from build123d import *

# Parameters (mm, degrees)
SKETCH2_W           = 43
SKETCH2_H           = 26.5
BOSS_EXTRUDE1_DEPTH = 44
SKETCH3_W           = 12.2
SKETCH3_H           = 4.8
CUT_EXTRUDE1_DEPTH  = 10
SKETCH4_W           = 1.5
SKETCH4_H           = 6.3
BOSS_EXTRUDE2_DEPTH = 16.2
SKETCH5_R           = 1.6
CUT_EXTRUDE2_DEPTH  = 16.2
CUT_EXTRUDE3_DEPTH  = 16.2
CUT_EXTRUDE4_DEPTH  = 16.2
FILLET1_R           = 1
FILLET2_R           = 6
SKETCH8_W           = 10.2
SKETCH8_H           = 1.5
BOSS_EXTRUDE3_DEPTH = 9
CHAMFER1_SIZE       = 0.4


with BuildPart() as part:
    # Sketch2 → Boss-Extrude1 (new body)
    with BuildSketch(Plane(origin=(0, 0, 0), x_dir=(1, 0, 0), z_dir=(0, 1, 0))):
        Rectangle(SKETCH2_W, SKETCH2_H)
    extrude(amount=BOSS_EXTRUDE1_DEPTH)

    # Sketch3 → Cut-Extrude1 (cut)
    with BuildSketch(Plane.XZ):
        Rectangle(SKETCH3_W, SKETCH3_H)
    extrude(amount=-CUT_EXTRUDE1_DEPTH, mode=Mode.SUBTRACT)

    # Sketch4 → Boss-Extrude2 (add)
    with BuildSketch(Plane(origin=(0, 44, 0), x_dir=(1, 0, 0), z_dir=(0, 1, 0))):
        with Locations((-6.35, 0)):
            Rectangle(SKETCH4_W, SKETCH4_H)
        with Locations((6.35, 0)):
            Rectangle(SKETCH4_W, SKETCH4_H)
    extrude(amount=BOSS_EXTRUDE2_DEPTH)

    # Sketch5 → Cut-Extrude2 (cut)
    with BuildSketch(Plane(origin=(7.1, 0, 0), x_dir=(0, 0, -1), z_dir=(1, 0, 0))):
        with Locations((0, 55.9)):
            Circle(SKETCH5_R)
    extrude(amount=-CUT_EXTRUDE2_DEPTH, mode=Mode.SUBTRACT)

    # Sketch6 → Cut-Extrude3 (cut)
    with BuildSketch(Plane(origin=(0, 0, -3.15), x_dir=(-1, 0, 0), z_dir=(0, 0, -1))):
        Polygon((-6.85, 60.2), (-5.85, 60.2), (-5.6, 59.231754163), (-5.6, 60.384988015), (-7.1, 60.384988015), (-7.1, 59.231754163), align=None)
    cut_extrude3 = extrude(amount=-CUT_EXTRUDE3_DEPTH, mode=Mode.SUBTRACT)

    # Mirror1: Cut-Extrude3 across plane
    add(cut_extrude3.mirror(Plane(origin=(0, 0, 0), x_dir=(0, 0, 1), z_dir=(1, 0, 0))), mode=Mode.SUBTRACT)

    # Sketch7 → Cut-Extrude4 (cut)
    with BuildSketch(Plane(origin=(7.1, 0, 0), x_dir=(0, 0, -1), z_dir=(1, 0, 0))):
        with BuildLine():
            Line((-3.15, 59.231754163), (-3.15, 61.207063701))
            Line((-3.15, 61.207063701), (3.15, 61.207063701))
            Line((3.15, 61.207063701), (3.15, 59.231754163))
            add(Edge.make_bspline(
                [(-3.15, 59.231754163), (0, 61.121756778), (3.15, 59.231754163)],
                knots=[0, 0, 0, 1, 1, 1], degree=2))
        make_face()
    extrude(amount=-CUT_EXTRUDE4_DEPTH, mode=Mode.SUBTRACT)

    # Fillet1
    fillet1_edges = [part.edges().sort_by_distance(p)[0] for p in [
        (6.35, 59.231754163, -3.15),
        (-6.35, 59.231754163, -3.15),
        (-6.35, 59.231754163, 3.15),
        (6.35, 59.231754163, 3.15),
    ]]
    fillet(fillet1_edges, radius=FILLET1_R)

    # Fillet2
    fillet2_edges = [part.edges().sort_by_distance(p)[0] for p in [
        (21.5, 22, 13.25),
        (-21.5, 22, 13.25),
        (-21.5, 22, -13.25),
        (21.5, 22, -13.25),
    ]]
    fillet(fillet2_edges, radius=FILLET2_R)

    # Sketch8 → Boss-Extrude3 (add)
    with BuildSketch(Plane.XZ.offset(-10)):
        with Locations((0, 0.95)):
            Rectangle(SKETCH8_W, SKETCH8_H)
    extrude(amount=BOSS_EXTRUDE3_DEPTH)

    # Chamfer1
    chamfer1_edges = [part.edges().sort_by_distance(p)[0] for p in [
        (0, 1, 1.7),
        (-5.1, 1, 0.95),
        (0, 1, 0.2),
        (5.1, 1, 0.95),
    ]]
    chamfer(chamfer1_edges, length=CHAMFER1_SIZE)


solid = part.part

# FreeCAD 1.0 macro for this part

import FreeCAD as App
import Part
import Sketcher
Q = App.Units.Quantity


def edges_at(feature, points):
    """Names of the edges that pass closest to the given points."""
    edges = feature.Shape.Edges
    near = lambda p: min(range(len(edges)), key=lambda i: edges[i].distToShape(Part.Vertex(*p))[0])
    return sorted({f"Edge{near(p) + 1}" for p in points})

doc = App.newDocument("Part")
body = doc.addObject("PartDesign::Body", "Body")

# Sketch on XZ plane
sketch1 = doc.addObject("Sketcher::SketchObject", "Sketch")
body.addObject(sketch1)
sketch1.AttachmentSupport = (doc.XZ_Plane, [""])
sketch1.MapMode = "FlatFace"
sketch1.addGeometry(Part.LineSegment(App.Vector(-22, -13, 0), App.Vector(-22, 13, 0)), False)
sketch1.addGeometry(Part.LineSegment(App.Vector(-22, 13, 0), App.Vector(22, 13, 0)), False)
sketch1.addGeometry(Part.LineSegment(App.Vector(22, 13, 0), App.Vector(22, -13, 0)), False)
sketch1.addGeometry(Part.LineSegment(App.Vector(22, -13, 0), App.Vector(-22, -13, 0)), False)
sketch1.addConstraint(Sketcher.Constraint("Coincident", 0, 2, 1, 1))
sketch1.addConstraint(Sketcher.Constraint("Coincident", 1, 2, 2, 1))
sketch1.addConstraint(Sketcher.Constraint("Coincident", 2, 2, 3, 1))
sketch1.addConstraint(Sketcher.Constraint("Coincident", 3, 2, 0, 1))
sketch1.addConstraint(Sketcher.Constraint("Vertical", 0))
sketch1.addConstraint(Sketcher.Constraint("Horizontal", 1))
sketch1.addConstraint(Sketcher.Constraint("Vertical", 2))
sketch1.addConstraint(Sketcher.Constraint("Horizontal", 3))
sketch1.addConstraint(Sketcher.Constraint("Symmetric", 0, 2, 2, 2, -1, 1))
sketch1.addConstraint(Sketcher.Constraint("DistanceX", 1, 1, 1, 2, Q("43 mm")))
sketch1.addConstraint(Sketcher.Constraint("DistanceY", 0, 1, 0, 2, Q("26.5 mm")))
pad1 = doc.addObject("PartDesign::Pad", "Pad")
body.addObject(pad1)
pad1.Profile = sketch1
pad1.Length = 44
pad1.Reversed = True

# Sketch on XZ plane
sketch2 = doc.addObject("Sketcher::SketchObject", "Sketch001")
body.addObject(sketch2)
sketch2.AttachmentSupport = (doc.XZ_Plane, [""])
sketch2.MapMode = "FlatFace"
sketch2.addGeometry(Part.LineSegment(App.Vector(-6.1, 2.4, 0), App.Vector(-6.1, -2.4, 0)), False)
sketch2.addGeometry(Part.LineSegment(App.Vector(-6.1, -2.4, 0), App.Vector(6.1, -2.4, 0)), False)
sketch2.addGeometry(Part.LineSegment(App.Vector(6.1, -2.4, 0), App.Vector(6.1, 2.4, 0)), False)
sketch2.addGeometry(Part.LineSegment(App.Vector(6.1, 2.4, 0), App.Vector(-6.1, 2.4, 0)), False)
sketch2.addConstraint(Sketcher.Constraint("Coincident", 0, 2, 1, 1))
sketch2.addConstraint(Sketcher.Constraint("Coincident", 1, 2, 2, 1))
sketch2.addConstraint(Sketcher.Constraint("Coincident", 2, 2, 3, 1))
sketch2.addConstraint(Sketcher.Constraint("Coincident", 3, 2, 0, 1))
sketch2.addConstraint(Sketcher.Constraint("Vertical", 0))
sketch2.addConstraint(Sketcher.Constraint("Horizontal", 1))
sketch2.addConstraint(Sketcher.Constraint("Vertical", 2))
sketch2.addConstraint(Sketcher.Constraint("Horizontal", 3))
sketch2.addConstraint(Sketcher.Constraint("Symmetric", 0, 2, 2, 2, -1, 1))
sketch2.addConstraint(Sketcher.Constraint("DistanceX", 1, 1, 1, 2, Q("12.2 mm")))
sketch2.addConstraint(Sketcher.Constraint("DistanceY", 0, 2, 0, 1, Q("4.8 mm")))
pocket1 = doc.addObject("PartDesign::Pocket", "Pocket")
body.addObject(pocket1)
pocket1.Profile = sketch2
pocket1.Length = 10

# Sketch on XZ plane
sketch3 = doc.addObject("Sketcher::SketchObject", "Sketch002")
body.addObject(sketch3)
sketch3.AttachmentSupport = (doc.XZ_Plane, [""])
sketch3.MapMode = "FlatFace"
sketch3.AttachmentOffset = App.Placement(App.Vector(0, 0, -44), App.Rotation())
sketch3.addGeometry(Part.LineSegment(App.Vector(-7.1, -3.1, 0), App.Vector(-7.1, 3.1, 0)), False)
sketch3.addGeometry(Part.LineSegment(App.Vector(-7.1, 3.1, 0), App.Vector(-5.6, 3.1, 0)), False)
sketch3.addGeometry(Part.LineSegment(App.Vector(-5.6, 3.1, 0), App.Vector(-5.6, -3.1, 0)), False)
sketch3.addGeometry(Part.LineSegment(App.Vector(-5.6, -3.1, 0), App.Vector(-7.1, -3.1, 0)), False)
sketch3.addGeometry(Part.LineSegment(App.Vector(5.6, -3.1, 0), App.Vector(5.6, 3.1, 0)), False)
sketch3.addGeometry(Part.LineSegment(App.Vector(5.6, 3.1, 0), App.Vector(7.1, 3.1, 0)), False)
sketch3.addGeometry(Part.LineSegment(App.Vector(7.1, 3.1, 0), App.Vector(7.1, -3.1, 0)), False)
sketch3.addGeometry(Part.LineSegment(App.Vector(7.1, -3.1, 0), App.Vector(5.6, -3.1, 0)), False)
sketch3.addConstraint(Sketcher.Constraint("Coincident", 0, 2, 1, 1))
sketch3.addConstraint(Sketcher.Constraint("Coincident", 1, 2, 2, 1))
sketch3.addConstraint(Sketcher.Constraint("Coincident", 2, 2, 3, 1))
sketch3.addConstraint(Sketcher.Constraint("Coincident", 3, 2, 0, 1))
sketch3.addConstraint(Sketcher.Constraint("Coincident", 4, 2, 5, 1))
sketch3.addConstraint(Sketcher.Constraint("Coincident", 5, 2, 6, 1))
sketch3.addConstraint(Sketcher.Constraint("Coincident", 6, 2, 7, 1))
sketch3.addConstraint(Sketcher.Constraint("Coincident", 7, 2, 4, 1))
sketch3.addConstraint(Sketcher.Constraint("Vertical", 0))
sketch3.addConstraint(Sketcher.Constraint("Horizontal", 1))
sketch3.addConstraint(Sketcher.Constraint("Vertical", 2))
sketch3.addConstraint(Sketcher.Constraint("Horizontal", 3))
sketch3.addConstraint(Sketcher.Constraint("Vertical", 4))
sketch3.addConstraint(Sketcher.Constraint("Horizontal", 5))
sketch3.addConstraint(Sketcher.Constraint("Vertical", 6))
sketch3.addConstraint(Sketcher.Constraint("Horizontal", 7))
sketch3.addConstraint(Sketcher.Constraint("Symmetric", 2, 2, 4, 2, -1, 1))
sketch3.addConstraint(Sketcher.Constraint("Symmetric", 0, 2, 6, 2, -1, 1))
sketch3.addConstraint(Sketcher.Constraint("Horizontal", 1, 2, 4, 2))
sketch3.addConstraint(Sketcher.Constraint("DistanceX", 1, 1, 1, 2, Q("1.5 mm")))
sketch3.addConstraint(Sketcher.Constraint("DistanceY", 0, 1, 0, 2, Q("6.3 mm")))
sketch3.addConstraint(Sketcher.Constraint("DistanceX", 0, 2, -1, 1, Q("7.1 mm")))
pad2 = doc.addObject("PartDesign::Pad", "Pad001")
body.addObject(pad2)
pad2.Profile = sketch3
pad2.Length = 16.2
pad2.Reversed = True

# Sketch on YZ plane
sketch4 = doc.addObject("Sketcher::SketchObject", "Sketch003")
body.addObject(sketch4)
sketch4.AttachmentSupport = (doc.YZ_Plane, [""])
sketch4.MapMode = "FlatFace"
sketch4.AttachmentOffset = App.Placement(App.Vector(0, 0, 7.1), App.Rotation())
sketch4.addGeometry(Part.Circle(App.Vector(55.9, 0, 0), App.Vector(0, 0, 1), 1.6), False)
sketch4.addConstraint(Sketcher.Constraint("PointOnObject", 0, 3, -1))
sketch4.addConstraint(Sketcher.Constraint("Diameter", 0, Q("3.2 mm")))
sketch4.addConstraint(Sketcher.Constraint("DistanceX", -1, 1, 0, 3, Q("55.9 mm")))
pocket2 = doc.addObject("PartDesign::Pocket", "Pocket001")
body.addObject(pocket2)
pocket2.Profile = sketch4
pocket2.Length = 16.2

# Sketch on XY plane
sketch5 = doc.addObject("Sketcher::SketchObject", "Sketch004")
body.addObject(sketch5)
sketch5.AttachmentSupport = (doc.XY_Plane, [""])
sketch5.MapMode = "FlatFace"
sketch5.AttachmentOffset = App.Placement(App.Vector(0, 0, -3.15), App.Rotation())
sketch5.addGeometry(Part.LineSegment(App.Vector(6.8, 60.2, 0), App.Vector(5.8, 60.2, 0)), False)
sketch5.addGeometry(Part.LineSegment(App.Vector(5.8, 60.2, 0), App.Vector(5.6, 59.2, 0)), False)
sketch5.addGeometry(Part.LineSegment(App.Vector(5.6, 59.2, 0), App.Vector(5.6, 60.4, 0)), False)
sketch5.addGeometry(Part.LineSegment(App.Vector(5.6, 60.4, 0), App.Vector(7.1, 60.4, 0)), False)
sketch5.addGeometry(Part.LineSegment(App.Vector(7.1, 60.4, 0), App.Vector(7.1, 59.2, 0)), False)
sketch5.addGeometry(Part.LineSegment(App.Vector(7.1, 59.2, 0), App.Vector(6.8, 60.2, 0)), False)
sketch5.addConstraint(Sketcher.Constraint("Coincident", 0, 2, 1, 1))
sketch5.addConstraint(Sketcher.Constraint("Coincident", 1, 2, 2, 1))
sketch5.addConstraint(Sketcher.Constraint("Coincident", 2, 2, 3, 1))
sketch5.addConstraint(Sketcher.Constraint("Coincident", 3, 2, 4, 1))
sketch5.addConstraint(Sketcher.Constraint("Coincident", 4, 2, 5, 1))
sketch5.addConstraint(Sketcher.Constraint("Coincident", 5, 2, 0, 1))
sketch5.addConstraint(Sketcher.Constraint("Horizontal", 0))
sketch5.addConstraint(Sketcher.Constraint("Vertical", 2))
sketch5.addConstraint(Sketcher.Constraint("Horizontal", 3))
sketch5.addConstraint(Sketcher.Constraint("Vertical", 4))
sketch5.addConstraint(Sketcher.Constraint("Horizontal", 1, 2, 4, 2))
sketch5.addConstraint(Sketcher.Constraint("Equal", 1, 5))
sketch5.addConstraint(Sketcher.Constraint("DistanceX", 0, 2, 0, 1, Q("1 mm")))
sketch5.addConstraint(Sketcher.Constraint("Distance", 1, Q("1 mm")))
sketch5.addConstraint(Sketcher.Constraint("DistanceX", 3, 1, 3, 2, Q("1.5 mm")))
sketch5.addConstraint(Sketcher.Constraint("DistanceY", -1, 1, 0, 2, Q("60.2 mm")))
sketch5.addConstraint(Sketcher.Constraint("DistanceX", -1, 1, 1, 2, Q("5.6 mm")))
sketch5.addConstraint(Sketcher.Constraint("DistanceY", 2, 1, 2, 2, Q("1.153234 mm")))
pocket3 = doc.addObject("PartDesign::Pocket", "Pocket002")
body.addObject(pocket3)
pocket3.Profile = sketch5
pocket3.Length = 16.2
pocket3.Reversed = True
doc.recompute()

mirrored = doc.addObject("PartDesign::Mirrored", "Mirrored")
body.addObject(mirrored)
mirrored.Originals = [pocket3]
mirrored.MirrorPlane = (doc.YZ_Plane, [""])
body.Tip = mirrored

# Sketch on YZ plane
sketch6 = doc.addObject("Sketcher::SketchObject", "Sketch005")
body.addObject(sketch6)
sketch6.AttachmentSupport = (doc.YZ_Plane, [""])
sketch6.MapMode = "FlatFace"
sketch6.AttachmentOffset = App.Placement(App.Vector(0, 0, 7.1), App.Rotation())
sketch6.addGeometry(Part.LineSegment(App.Vector(61.207064, 3.15, 0), App.Vector(59.231754, 3.15, 0)), False)
sketch6.addGeometry(Part.BSplineCurve([App.Vector(59.231754, 3.15, 0), App.Vector(61.121757, 0, 0), App.Vector(59.231754, -3.15, 0)], [3, 3], [0, 1], False, 2, [1, 1, 1], False), False)
sketch6.addGeometry(Part.LineSegment(App.Vector(59.231754, -3.15, 0), App.Vector(61.207064, -3.15, 0)), False)
sketch6.addGeometry(Part.LineSegment(App.Vector(61.207064, -3.15, 0), App.Vector(61.207064, 3.15, 0)), False)
sketch6.addConstraint(Sketcher.Constraint("Block", 1))
sketch6.addConstraint(Sketcher.Constraint("Coincident", 0, 2, 1, 1))
sketch6.addConstraint(Sketcher.Constraint("Coincident", 1, 2, 2, 1))
sketch6.addConstraint(Sketcher.Constraint("Coincident", 2, 2, 3, 1))
sketch6.addConstraint(Sketcher.Constraint("Coincident", 3, 2, 0, 1))
sketch6.addConstraint(Sketcher.Constraint("Horizontal", 0))
sketch6.addConstraint(Sketcher.Constraint("Horizontal", 2))
sketch6.addConstraint(Sketcher.Constraint("Vertical", 3))
sketch6.addConstraint(Sketcher.Constraint("DistanceX", 0, 2, 0, 1, Q("1.97531 mm")))
pocket4 = doc.addObject("PartDesign::Pocket", "Pocket003")
body.addObject(pocket4)
pocket4.Profile = sketch6
pocket4.Length = 16.2
doc.recompute()

fillet = doc.addObject("PartDesign::Fillet", "Fillet")
body.addObject(fillet)
fillet.Base = (pocket4, edges_at(pocket4, [
    (6.35, 59.232, -3.15),
    (-6.35, 59.232, -3.15),
    (-6.35, 59.232, 3.15),
    (6.35, 59.232, 3.15),
]))
fillet.Radius = 1
doc.recompute()

fillet2 = doc.addObject("PartDesign::Fillet", "Fillet001")
body.addObject(fillet2)
fillet2.Base = (fillet, edges_at(fillet, [
    (21.5, 22, 13.25),
    (-21.5, 22, 13.25),
    (-21.5, 22, -13.25),
    (21.5, 22, -13.25),
]))
fillet2.Radius = 6

# Sketch on XZ plane
sketch7 = doc.addObject("Sketcher::SketchObject", "Sketch006")
body.addObject(sketch7)
sketch7.AttachmentSupport = (doc.XZ_Plane, [""])
sketch7.MapMode = "FlatFace"
sketch7.AttachmentOffset = App.Placement(App.Vector(0, 0, -10), App.Rotation())
sketch7.addGeometry(Part.LineSegment(App.Vector(-5.1, 1.7, 0), App.Vector(-5.1, 0.2, 0)), False)
sketch7.addGeometry(Part.LineSegment(App.Vector(-5.1, 0.2, 0), App.Vector(5.1, 0.2, 0)), False)
sketch7.addGeometry(Part.LineSegment(App.Vector(5.1, 0.2, 0), App.Vector(5.1, 1.7, 0)), False)
sketch7.addGeometry(Part.LineSegment(App.Vector(5.1, 1.7, 0), App.Vector(-5.1, 1.7, 0)), False)
sketch7.addConstraint(Sketcher.Constraint("Coincident", 0, 2, 1, 1))
sketch7.addConstraint(Sketcher.Constraint("Coincident", 1, 2, 2, 1))
sketch7.addConstraint(Sketcher.Constraint("Coincident", 2, 2, 3, 1))
sketch7.addConstraint(Sketcher.Constraint("Coincident", 3, 2, 0, 1))
sketch7.addConstraint(Sketcher.Constraint("Vertical", 0))
sketch7.addConstraint(Sketcher.Constraint("Horizontal", 1))
sketch7.addConstraint(Sketcher.Constraint("Vertical", 2))
sketch7.addConstraint(Sketcher.Constraint("Horizontal", 3))
sketch7.addConstraint(Sketcher.Constraint("DistanceX", 1, 1, 1, 2, Q("10.2 mm")))
sketch7.addConstraint(Sketcher.Constraint("DistanceY", 0, 2, 0, 1, Q("1.5 mm")))
sketch7.addConstraint(Sketcher.Constraint("DistanceX", 0, 2, -1, 1, Q("5.1 mm")))
sketch7.addConstraint(Sketcher.Constraint("DistanceY", -1, 1, 0, 2, Q("0.2 mm")))
pad3 = doc.addObject("PartDesign::Pad", "Pad002")
body.addObject(pad3)
pad3.Profile = sketch7
pad3.Length = 9
doc.recompute()

chamfer = doc.addObject("PartDesign::Chamfer", "Chamfer")
body.addObject(chamfer)
chamfer.Base = (pad3, edges_at(pad3, [
    (0, 1, 1.7),
    (-5.1, 1, 0.95),
    (0, 1, 0.2),
    (5.1, 1, 0.95),
]))
chamfer.Size = 0.4

doc.recompute()
